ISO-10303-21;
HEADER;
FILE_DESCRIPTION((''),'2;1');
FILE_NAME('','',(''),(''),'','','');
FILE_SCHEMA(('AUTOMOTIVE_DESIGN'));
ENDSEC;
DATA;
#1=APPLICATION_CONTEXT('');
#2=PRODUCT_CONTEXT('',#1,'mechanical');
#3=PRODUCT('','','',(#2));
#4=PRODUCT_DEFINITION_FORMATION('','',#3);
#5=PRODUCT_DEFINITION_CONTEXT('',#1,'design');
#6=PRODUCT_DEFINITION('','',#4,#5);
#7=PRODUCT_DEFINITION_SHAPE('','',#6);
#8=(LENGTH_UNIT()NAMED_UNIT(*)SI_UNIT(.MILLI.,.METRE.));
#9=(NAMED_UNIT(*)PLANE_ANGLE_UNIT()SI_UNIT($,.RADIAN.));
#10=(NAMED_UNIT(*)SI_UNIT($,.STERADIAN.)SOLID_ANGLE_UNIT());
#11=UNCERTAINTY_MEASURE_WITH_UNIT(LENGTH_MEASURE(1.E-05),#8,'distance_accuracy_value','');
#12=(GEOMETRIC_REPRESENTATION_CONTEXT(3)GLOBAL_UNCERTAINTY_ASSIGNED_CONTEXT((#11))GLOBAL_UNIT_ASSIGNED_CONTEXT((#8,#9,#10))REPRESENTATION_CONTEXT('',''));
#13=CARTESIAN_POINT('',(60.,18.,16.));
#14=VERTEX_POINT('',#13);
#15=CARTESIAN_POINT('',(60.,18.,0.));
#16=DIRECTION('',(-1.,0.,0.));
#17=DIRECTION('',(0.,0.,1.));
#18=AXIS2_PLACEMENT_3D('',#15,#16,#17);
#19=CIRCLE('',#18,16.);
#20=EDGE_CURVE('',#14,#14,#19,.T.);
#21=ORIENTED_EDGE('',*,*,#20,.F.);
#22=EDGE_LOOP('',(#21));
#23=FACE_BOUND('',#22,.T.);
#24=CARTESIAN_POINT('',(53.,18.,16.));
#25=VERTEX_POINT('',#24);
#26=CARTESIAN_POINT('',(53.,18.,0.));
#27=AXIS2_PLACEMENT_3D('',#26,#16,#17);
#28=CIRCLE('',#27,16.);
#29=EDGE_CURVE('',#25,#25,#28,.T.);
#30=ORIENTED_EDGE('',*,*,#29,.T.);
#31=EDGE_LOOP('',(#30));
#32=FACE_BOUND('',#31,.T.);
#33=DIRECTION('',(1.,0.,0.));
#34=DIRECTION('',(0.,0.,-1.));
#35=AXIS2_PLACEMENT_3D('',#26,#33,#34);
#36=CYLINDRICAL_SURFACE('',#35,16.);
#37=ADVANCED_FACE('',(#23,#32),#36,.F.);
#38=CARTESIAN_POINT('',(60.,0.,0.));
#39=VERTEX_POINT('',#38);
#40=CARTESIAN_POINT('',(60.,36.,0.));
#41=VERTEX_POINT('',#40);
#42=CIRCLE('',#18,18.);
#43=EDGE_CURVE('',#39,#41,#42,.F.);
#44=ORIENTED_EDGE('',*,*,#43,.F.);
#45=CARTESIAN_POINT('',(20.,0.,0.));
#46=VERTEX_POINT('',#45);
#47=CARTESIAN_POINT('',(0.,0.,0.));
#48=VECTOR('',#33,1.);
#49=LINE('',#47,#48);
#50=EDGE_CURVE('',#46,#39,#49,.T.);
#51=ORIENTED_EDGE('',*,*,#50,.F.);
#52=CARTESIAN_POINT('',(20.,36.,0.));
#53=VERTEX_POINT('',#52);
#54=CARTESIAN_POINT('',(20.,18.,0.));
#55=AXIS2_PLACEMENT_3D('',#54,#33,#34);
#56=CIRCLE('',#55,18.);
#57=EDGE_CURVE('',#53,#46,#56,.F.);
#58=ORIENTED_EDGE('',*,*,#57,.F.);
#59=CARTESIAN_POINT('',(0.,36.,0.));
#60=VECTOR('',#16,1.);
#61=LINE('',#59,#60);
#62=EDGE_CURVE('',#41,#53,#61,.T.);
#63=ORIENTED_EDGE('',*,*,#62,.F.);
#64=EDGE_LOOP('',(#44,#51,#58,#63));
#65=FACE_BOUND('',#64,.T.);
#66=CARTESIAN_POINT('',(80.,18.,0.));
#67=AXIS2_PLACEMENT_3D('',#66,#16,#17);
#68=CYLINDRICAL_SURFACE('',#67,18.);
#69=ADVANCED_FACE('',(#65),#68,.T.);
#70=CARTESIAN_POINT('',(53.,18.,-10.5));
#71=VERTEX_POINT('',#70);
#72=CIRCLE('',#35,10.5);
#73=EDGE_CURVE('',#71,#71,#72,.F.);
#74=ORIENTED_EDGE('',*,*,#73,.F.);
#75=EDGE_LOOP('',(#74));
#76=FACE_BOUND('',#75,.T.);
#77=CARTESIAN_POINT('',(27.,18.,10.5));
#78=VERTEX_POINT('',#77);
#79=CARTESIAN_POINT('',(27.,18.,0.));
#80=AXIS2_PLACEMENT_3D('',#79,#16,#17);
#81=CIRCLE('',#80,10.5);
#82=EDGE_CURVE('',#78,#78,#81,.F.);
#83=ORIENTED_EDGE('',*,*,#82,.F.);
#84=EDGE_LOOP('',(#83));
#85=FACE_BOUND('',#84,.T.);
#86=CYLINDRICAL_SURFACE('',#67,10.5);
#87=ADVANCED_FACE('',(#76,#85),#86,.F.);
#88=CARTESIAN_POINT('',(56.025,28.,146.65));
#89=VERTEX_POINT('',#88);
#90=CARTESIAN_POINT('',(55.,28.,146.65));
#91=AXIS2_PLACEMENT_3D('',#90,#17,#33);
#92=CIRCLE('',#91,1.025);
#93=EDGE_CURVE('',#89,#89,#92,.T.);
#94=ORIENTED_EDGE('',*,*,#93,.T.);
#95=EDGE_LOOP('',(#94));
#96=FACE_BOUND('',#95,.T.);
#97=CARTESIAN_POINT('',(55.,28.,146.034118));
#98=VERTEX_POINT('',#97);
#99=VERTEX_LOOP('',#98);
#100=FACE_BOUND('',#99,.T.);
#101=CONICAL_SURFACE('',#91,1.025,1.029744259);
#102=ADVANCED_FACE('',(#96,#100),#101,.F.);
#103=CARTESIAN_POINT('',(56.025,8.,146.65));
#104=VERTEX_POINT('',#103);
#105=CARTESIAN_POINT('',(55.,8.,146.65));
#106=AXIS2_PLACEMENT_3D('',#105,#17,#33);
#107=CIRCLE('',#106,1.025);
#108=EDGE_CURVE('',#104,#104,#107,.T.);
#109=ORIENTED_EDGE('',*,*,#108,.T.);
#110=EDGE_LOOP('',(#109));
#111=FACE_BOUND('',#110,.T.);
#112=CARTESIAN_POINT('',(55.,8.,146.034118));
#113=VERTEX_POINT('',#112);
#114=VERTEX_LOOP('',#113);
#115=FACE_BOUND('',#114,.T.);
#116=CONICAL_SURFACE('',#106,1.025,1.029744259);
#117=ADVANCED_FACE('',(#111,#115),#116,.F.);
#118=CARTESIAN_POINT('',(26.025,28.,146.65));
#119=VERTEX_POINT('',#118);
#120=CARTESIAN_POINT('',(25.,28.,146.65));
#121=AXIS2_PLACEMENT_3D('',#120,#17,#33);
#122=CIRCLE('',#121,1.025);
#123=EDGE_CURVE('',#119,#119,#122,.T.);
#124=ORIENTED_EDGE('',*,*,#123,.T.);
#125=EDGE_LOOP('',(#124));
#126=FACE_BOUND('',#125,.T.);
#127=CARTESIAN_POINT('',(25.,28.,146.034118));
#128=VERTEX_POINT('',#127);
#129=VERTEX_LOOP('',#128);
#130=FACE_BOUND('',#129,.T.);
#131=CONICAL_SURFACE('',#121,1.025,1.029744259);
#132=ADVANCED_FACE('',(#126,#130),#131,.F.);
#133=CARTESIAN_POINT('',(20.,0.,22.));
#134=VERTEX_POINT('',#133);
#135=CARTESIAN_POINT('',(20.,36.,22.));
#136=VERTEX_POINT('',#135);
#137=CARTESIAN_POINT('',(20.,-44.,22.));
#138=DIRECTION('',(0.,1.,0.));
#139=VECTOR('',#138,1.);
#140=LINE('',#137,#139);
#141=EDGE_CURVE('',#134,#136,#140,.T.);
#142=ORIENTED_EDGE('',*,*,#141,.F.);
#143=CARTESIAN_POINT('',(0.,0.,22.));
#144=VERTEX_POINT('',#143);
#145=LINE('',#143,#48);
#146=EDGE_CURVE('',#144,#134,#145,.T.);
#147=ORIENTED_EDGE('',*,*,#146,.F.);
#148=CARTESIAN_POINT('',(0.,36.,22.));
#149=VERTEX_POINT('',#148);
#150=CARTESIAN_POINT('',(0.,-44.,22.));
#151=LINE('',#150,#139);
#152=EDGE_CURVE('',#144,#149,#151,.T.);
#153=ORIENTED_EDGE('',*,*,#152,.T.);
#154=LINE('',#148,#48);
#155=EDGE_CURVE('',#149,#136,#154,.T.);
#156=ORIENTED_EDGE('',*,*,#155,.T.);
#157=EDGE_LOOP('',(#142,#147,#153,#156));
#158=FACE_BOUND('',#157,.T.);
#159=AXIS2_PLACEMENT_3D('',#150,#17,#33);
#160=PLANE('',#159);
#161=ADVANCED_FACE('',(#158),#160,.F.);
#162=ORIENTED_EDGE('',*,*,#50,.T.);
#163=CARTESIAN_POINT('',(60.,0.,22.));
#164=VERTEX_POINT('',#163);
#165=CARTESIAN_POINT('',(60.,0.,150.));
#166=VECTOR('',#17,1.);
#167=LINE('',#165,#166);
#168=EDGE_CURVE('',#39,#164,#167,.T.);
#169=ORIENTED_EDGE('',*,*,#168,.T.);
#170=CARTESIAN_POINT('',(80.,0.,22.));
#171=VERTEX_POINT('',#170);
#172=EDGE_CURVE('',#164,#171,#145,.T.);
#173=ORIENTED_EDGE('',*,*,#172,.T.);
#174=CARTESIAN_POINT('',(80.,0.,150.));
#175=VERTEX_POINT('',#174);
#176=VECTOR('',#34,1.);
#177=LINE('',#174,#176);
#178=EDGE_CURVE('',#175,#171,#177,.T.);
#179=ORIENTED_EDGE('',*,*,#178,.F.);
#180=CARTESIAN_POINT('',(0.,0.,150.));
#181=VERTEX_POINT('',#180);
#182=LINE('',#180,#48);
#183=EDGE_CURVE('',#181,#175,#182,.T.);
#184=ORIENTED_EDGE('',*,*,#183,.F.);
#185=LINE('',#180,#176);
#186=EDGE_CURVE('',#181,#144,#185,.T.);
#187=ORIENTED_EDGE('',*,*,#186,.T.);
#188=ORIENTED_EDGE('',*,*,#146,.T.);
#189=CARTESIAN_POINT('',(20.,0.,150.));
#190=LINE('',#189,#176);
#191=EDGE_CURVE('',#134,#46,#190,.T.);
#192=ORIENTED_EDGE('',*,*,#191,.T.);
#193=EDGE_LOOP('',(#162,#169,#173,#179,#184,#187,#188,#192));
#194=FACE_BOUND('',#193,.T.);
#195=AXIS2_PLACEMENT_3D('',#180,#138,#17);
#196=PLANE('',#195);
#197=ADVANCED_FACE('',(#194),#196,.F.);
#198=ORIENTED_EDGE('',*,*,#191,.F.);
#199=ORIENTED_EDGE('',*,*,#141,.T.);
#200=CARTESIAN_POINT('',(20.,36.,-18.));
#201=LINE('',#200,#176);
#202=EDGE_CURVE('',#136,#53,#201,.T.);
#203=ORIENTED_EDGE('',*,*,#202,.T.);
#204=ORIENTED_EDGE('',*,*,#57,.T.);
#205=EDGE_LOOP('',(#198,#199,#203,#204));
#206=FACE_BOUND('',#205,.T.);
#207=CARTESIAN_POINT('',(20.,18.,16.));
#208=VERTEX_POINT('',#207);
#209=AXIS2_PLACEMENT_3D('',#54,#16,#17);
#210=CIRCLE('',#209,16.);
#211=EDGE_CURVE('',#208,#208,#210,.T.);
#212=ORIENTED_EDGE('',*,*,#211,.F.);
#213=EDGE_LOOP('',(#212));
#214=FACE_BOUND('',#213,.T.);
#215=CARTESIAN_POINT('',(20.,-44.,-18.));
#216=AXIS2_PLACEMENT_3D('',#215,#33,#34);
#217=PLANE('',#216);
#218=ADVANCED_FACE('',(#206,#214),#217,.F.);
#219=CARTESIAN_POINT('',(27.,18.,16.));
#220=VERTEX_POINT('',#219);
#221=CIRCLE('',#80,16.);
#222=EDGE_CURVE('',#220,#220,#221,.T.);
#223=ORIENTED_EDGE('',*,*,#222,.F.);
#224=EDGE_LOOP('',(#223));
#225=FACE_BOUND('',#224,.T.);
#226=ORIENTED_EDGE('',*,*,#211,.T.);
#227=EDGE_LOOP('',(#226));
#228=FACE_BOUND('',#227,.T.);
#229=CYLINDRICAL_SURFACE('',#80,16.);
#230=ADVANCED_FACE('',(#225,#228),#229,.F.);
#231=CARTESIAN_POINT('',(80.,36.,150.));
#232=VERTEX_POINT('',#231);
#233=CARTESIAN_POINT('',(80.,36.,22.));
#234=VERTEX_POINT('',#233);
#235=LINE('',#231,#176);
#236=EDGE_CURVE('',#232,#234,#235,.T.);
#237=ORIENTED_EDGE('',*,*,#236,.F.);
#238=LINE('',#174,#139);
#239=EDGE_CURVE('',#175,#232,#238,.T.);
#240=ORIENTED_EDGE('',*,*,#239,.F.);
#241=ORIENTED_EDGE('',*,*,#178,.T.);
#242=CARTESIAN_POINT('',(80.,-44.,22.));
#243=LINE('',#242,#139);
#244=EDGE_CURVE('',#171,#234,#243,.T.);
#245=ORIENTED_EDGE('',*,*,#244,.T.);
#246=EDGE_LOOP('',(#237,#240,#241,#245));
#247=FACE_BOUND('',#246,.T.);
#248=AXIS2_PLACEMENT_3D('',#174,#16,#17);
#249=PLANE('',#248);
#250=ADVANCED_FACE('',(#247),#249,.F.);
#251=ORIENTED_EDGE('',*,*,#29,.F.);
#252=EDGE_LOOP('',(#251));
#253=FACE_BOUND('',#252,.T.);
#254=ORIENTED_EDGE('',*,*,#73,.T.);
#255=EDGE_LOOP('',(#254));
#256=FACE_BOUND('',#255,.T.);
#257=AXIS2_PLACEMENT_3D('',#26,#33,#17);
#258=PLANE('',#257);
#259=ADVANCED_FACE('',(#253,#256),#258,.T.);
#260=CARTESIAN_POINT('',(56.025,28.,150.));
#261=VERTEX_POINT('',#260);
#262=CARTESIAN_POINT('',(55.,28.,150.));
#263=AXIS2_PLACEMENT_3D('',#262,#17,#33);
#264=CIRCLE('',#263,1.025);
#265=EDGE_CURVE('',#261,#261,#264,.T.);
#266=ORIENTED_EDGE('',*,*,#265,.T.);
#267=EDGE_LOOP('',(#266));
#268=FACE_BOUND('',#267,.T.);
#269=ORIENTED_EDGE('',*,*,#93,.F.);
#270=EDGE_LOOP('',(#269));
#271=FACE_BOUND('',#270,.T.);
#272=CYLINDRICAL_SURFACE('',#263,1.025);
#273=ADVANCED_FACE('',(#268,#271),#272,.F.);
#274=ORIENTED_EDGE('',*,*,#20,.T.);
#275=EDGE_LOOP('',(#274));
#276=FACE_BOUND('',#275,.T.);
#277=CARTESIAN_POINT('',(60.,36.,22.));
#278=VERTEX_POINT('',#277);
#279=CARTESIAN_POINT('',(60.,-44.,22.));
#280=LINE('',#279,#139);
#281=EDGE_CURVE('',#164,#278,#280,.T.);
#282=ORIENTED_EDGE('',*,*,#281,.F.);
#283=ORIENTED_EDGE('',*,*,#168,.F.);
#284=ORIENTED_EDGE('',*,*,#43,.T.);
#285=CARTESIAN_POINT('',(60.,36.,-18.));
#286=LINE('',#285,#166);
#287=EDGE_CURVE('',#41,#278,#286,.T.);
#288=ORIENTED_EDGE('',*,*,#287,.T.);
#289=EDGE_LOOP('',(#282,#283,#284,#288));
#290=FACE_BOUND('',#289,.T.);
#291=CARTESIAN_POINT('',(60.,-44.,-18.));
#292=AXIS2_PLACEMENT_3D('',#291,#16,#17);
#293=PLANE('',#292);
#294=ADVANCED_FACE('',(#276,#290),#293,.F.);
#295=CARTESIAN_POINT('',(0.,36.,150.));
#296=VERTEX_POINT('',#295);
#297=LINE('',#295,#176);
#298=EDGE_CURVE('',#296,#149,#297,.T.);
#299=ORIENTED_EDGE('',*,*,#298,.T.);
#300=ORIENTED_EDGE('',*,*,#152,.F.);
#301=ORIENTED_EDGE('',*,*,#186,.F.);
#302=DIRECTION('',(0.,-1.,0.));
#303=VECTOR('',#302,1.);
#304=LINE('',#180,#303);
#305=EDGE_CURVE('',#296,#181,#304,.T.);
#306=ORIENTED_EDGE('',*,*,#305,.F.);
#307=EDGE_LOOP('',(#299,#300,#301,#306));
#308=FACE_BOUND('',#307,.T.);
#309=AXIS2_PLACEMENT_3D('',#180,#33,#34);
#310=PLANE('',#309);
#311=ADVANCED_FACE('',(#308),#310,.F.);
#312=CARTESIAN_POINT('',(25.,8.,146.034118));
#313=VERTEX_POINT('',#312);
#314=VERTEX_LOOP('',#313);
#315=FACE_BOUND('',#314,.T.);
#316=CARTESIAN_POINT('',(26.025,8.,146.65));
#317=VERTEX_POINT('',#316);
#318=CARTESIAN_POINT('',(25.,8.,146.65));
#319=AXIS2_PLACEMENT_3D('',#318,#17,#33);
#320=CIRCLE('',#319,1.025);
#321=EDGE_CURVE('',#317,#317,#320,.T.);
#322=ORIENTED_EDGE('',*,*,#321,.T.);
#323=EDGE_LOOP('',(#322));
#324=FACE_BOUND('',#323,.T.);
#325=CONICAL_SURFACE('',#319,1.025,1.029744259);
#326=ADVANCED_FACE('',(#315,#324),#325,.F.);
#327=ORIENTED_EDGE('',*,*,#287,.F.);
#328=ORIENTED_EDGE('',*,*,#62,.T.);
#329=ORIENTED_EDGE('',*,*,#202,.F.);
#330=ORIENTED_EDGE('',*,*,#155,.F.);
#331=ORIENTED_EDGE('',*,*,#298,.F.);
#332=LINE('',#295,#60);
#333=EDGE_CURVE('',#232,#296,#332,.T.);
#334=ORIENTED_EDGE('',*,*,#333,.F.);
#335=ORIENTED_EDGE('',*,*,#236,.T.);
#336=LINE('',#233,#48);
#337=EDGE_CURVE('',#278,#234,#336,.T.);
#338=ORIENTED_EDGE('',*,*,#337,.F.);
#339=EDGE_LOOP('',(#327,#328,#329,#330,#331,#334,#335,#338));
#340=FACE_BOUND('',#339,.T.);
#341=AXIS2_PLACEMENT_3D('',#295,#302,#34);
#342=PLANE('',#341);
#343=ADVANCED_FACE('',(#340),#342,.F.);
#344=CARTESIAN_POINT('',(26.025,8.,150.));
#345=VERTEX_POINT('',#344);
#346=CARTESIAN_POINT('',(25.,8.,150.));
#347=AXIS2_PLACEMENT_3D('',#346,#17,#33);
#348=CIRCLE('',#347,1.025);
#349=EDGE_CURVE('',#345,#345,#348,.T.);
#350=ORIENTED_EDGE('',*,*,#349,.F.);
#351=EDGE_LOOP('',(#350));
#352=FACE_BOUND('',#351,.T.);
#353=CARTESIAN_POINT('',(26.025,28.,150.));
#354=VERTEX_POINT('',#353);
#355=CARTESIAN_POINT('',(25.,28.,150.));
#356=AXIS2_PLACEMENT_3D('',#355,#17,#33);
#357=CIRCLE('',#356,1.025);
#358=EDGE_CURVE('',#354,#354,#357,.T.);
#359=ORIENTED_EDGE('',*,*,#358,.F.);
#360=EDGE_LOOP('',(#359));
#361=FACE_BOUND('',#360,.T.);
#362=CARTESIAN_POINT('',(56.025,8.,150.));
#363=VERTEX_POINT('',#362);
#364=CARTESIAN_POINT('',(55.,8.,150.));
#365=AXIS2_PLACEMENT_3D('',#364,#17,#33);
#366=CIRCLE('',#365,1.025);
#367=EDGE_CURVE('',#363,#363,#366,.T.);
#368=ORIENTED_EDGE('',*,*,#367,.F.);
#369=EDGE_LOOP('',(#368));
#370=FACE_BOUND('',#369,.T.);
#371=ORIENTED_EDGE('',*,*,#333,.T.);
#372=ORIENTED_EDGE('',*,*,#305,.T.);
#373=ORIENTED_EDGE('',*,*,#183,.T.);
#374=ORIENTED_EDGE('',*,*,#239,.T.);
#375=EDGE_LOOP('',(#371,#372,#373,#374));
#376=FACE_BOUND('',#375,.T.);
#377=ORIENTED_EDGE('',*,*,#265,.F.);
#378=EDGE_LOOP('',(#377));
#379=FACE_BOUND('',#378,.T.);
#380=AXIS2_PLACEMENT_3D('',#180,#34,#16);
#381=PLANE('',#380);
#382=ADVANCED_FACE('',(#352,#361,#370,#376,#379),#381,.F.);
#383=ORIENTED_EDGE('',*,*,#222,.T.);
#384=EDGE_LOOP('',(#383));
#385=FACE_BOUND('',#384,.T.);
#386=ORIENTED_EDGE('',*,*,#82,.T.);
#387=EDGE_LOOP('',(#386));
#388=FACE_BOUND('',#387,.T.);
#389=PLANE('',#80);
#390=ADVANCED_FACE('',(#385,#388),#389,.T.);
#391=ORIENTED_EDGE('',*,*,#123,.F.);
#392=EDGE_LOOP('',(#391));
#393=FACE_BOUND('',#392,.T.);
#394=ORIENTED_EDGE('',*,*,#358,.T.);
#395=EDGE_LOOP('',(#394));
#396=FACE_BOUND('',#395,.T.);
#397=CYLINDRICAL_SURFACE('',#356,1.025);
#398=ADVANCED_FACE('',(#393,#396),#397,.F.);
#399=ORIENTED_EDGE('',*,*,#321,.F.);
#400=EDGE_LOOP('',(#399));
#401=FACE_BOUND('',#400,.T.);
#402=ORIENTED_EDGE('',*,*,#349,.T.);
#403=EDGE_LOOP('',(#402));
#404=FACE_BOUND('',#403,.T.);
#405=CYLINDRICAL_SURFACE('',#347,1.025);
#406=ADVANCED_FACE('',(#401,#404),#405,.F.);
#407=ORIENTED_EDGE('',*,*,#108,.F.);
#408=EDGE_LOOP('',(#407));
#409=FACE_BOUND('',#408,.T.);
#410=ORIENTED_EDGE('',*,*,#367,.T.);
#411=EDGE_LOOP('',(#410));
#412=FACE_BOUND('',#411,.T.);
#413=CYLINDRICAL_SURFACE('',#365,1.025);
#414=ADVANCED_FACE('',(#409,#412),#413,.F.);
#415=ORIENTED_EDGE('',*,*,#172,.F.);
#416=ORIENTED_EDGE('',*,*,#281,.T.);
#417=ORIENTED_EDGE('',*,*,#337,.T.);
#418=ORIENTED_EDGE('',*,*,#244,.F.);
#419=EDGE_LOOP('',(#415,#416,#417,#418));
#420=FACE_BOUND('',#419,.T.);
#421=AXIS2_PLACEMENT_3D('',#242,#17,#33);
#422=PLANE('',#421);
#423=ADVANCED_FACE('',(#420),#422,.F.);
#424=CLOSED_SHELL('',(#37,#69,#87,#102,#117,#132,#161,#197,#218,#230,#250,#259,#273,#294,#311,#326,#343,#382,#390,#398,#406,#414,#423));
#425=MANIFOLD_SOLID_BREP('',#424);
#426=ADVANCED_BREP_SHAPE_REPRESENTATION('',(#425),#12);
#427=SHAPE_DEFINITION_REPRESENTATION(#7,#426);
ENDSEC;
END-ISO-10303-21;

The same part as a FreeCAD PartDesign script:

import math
import FreeCAD as App
import Part
import Sketcher

V = App.Vector
Q = App.Units.Quantity


def add_polygon(sketch, points):
    """Adds a closed chain of lines whose ends are joined by coincident constraints."""
    first, n = sketch.GeometryCount, len(points)
    for a, b in zip(points, points[1:] + points[:1]):
        sketch.addGeometry(Part.LineSegment(App.Vector(*a, 0), App.Vector(*b, 0)), False)
    for i in range(n):
        sketch.addConstraint(Sketcher.Constraint("Coincident", first + i, 2, first + (i + 1) % n, 1))

doc = App.newDocument("Part")
body = doc.addObject("PartDesign::Body", "Body")

# Sketch on XY plane
sketch1 = doc.addObject("Sketcher::SketchObject", "Sketch")
body.addObject(sketch1)
sketch1.AttachmentSupport = (doc.XY_Plane, [""])
sketch1.MapMode = "FlatFace"
add_polygon(sketch1, [(0, 36), (0, 0), (80, 0), (80, 36)])  # lines 0-3
sketch1.addConstraint([
    Sketcher.Constraint("Vertical", 0),
    Sketcher.Constraint("Horizontal", 1),
    Sketcher.Constraint("Vertical", 2),
    Sketcher.Constraint("Horizontal", 3),
    Sketcher.Constraint("Coincident", 0, 2, -1, 1),
    Sketcher.Constraint("DistanceX", 1, 1, 1, 2, Q("80 mm")),
    Sketcher.Constraint("DistanceY", 0, 2, 0, 1, Q("36 mm")),
])
pad1 = doc.addObject("PartDesign::Pad", "Pad")
body.addObject(pad1)
pad1.Profile = sketch1
pad1.Length = 150

# Sketch on XY plane
sketch2 = doc.addObject("Sketcher::SketchObject", "Sketch001")
body.addObject(sketch2)
sketch2.AttachmentSupport = (doc.XY_Plane, [""])
sketch2.MapMode = "FlatFace"
sketch2.AttachmentOffset = App.Placement(V(0, 0, 150), App.Rotation())
sketch2.addGeometry([
    Part.Circle(V(25, 28, 0), V(0, 0, 1), 1),
    Part.Circle(V(55, 28, 0), V(0, 0, 1), 1),
    Part.Circle(V(55, 8, 0), V(0, 0, 1), 1),
    Part.Circle(V(25, 8, 0), V(0, 0, 1), 1),
], False)
sketch2.addConstraint([
    Sketcher.Constraint("Equal", 0, 1),
    Sketcher.Constraint("Equal", 1, 2),
    Sketcher.Constraint("Equal", 2, 3),
    Sketcher.Constraint("Horizontal", 0, 3, 1, 3),
    Sketcher.Constraint("Horizontal", 2, 3, 3, 3),
    Sketcher.Constraint("Vertical", 1, 3, 2, 3),
    Sketcher.Constraint("Vertical", 0, 3, 3, 3),
    Sketcher.Constraint("Diameter", 0, Q("2.05 mm")),
    Sketcher.Constraint("DistanceX", -1, 1, 0, 3, Q("25 mm")),
    Sketcher.Constraint("DistanceY", -1, 1, 0, 3, Q("28 mm")),
    Sketcher.Constraint("DistanceX", -1, 1, 1, 3, Q("55 mm")),
    Sketcher.Constraint("DistanceY", -1, 1, 2, 3, Q("8 mm")),
])
doc.recompute()
hole = doc.addObject("PartDesign::Hole", "Hole")
body.addObject(hole)
hole.Profile = sketch2
hole.ThreadType = "None"
hole.Diameter = 2.05
hole.DepthType = "Dimension"
hole.Depth = 3.35
hole.DrillPoint = "Angled"
hole.DrillPointAngle = 118

# Sketch on YZ plane
sketch3 = doc.addObject("Sketcher::SketchObject", "Sketch002")
body.addObject(sketch3)
sketch3.AttachmentSupport = (doc.YZ_Plane, [""])
sketch3.MapMode = "FlatFace"
sketch3.addGeometry([
    Part.LineSegment(V(0, 0, 0), V(36, 0, 0)),
    Part.ArcOfCircle(Part.Circle(V(18, 0, 0), V(0, 0, 1), 18), math.radians(180), math.radians(360)),
], False)
sketch3.addConstraint([
    Sketcher.Constraint("Coincident", 0, 1, 1, 1),
    Sketcher.Constraint("Coincident", 1, 2, 0, 2),
    Sketcher.Constraint("Horizontal", 0),
    Sketcher.Constraint("Coincident", 0, 1, -1, 1),
    Sketcher.Constraint("PointOnObject", 1, 3, -1),
    Sketcher.Constraint("Radius", 1, Q("18 mm")),
])
pad2 = doc.addObject("PartDesign::Pad", "Pad001")
body.addObject(pad2)
pad2.Profile = sketch3
pad2.Length = 80

# Sketch on XZ plane
sketch4 = doc.addObject("Sketcher::SketchObject", "Sketch003")
body.addObject(sketch4)
sketch4.AttachmentSupport = (doc.XZ_Plane, [""])
sketch4.MapMode = "FlatFace"
sketch4.AttachmentOffset = App.Placement(V(0, 0, -36), App.Rotation())
add_polygon(sketch4, [(0, -18), (0, 22), (20, 22), (20, -18)])  # lines 0-3
add_polygon(sketch4, [(60, -18), (60, 22), (80, 22), (80, -18)])  # lines 4-7
sketch4.addConstraint([
    Sketcher.Constraint("Vertical", 0),
    Sketcher.Constraint("Horizontal", 1),
    Sketcher.Constraint("Vertical", 2),
    Sketcher.Constraint("Horizontal", 3),
    Sketcher.Constraint("Vertical", 4),
    Sketcher.Constraint("Horizontal", 5),
    Sketcher.Constraint("Vertical", 6),
    Sketcher.Constraint("Horizontal", 7),
    Sketcher.Constraint("PointOnObject", 0, 2, -2),
    Sketcher.Constraint("Horizontal", 1, 2, 4, 2),
    Sketcher.Constraint("Horizontal", 3, 2, 6, 2),
    Sketcher.Constraint("Equal", 3, 5),
    Sketcher.Constraint("DistanceX", 1, 1, 1, 2, Q("20 mm")),
    Sketcher.Constraint("DistanceY", 0, 1, 0, 2, Q("40 mm")),
    Sketcher.Constraint("DistanceY", -1, 1, 0, 2, Q("22 mm")),
    Sketcher.Constraint("DistanceX", -1, 1, 4, 2, Q("60 mm")),
])
pocket1 = doc.addObject("PartDesign::Pocket", "Pocket")
body.addObject(pocket1)
pocket1.Profile = sketch4
pocket1.Length = 80
pocket1.Reversed = True

# Sketch on YZ plane
sketch5 = doc.addObject("Sketcher::SketchObject", "Sketch004")
body.addObject(sketch5)
sketch5.AttachmentSupport = (doc.YZ_Plane, [""])
sketch5.MapMode = "FlatFace"
sketch5.addGeometry(Part.Circle(V(18, 0, 0), V(0, 0, 1), 10), False)
sketch5.addConstraint([
    Sketcher.Constraint("PointOnObject", 0, 3, -1),
    Sketcher.Constraint("Diameter", 0, Q("21 mm")),
    Sketcher.Constraint("DistanceX", -1, 1, 0, 3, Q("18 mm")),
])
pocket2 = doc.addObject("PartDesign::Pocket", "Pocket001")
body.addObject(pocket2)
pocket2.Profile = sketch5
pocket2.Length = 80
pocket2.Reversed = True

# Sketch on YZ plane
sketch6 = doc.addObject("Sketcher::SketchObject", "Sketch005")
body.addObject(sketch6)
sketch6.AttachmentSupport = (doc.YZ_Plane, [""])
sketch6.MapMode = "FlatFace"
sketch6.AttachmentOffset = App.Placement(V(0, 0, 20), App.Rotation())
sketch6.addGeometry(Part.Circle(V(18, 0, 0), V(0, 0, 1), 16), False)
sketch6.addConstraint([
    Sketcher.Constraint("PointOnObject", 0, 3, -1),
    Sketcher.Constraint("Diameter", 0, Q("32 mm")),
    Sketcher.Constraint("DistanceX", -1, 1, 0, 3, Q("18 mm")),
])
pocket3 = doc.addObject("PartDesign::Pocket", "Pocket002")
body.addObject(pocket3)
pocket3.Profile = sketch6
pocket3.Length = 7
pocket3.Reversed = True
doc.recompute()

datumplane = doc.addObject("PartDesign::Plane", "DatumPlane")
body.addObject(datumplane)
datumplane.AttachmentSupport = (doc.YZ_Plane, [""])
datumplane.MapMode = "FlatFace"
datumplane.AttachmentOffset = App.Placement(V(0, 0, 40), App.Rotation())
mirrored = doc.addObject("PartDesign::Mirrored", "Mirrored")
body.addObject(mirrored)
mirrored.Originals = [pocket3]
mirrored.MirrorPlane = (datumplane, [""])
body.Tip = mirrored

doc.recompute()
